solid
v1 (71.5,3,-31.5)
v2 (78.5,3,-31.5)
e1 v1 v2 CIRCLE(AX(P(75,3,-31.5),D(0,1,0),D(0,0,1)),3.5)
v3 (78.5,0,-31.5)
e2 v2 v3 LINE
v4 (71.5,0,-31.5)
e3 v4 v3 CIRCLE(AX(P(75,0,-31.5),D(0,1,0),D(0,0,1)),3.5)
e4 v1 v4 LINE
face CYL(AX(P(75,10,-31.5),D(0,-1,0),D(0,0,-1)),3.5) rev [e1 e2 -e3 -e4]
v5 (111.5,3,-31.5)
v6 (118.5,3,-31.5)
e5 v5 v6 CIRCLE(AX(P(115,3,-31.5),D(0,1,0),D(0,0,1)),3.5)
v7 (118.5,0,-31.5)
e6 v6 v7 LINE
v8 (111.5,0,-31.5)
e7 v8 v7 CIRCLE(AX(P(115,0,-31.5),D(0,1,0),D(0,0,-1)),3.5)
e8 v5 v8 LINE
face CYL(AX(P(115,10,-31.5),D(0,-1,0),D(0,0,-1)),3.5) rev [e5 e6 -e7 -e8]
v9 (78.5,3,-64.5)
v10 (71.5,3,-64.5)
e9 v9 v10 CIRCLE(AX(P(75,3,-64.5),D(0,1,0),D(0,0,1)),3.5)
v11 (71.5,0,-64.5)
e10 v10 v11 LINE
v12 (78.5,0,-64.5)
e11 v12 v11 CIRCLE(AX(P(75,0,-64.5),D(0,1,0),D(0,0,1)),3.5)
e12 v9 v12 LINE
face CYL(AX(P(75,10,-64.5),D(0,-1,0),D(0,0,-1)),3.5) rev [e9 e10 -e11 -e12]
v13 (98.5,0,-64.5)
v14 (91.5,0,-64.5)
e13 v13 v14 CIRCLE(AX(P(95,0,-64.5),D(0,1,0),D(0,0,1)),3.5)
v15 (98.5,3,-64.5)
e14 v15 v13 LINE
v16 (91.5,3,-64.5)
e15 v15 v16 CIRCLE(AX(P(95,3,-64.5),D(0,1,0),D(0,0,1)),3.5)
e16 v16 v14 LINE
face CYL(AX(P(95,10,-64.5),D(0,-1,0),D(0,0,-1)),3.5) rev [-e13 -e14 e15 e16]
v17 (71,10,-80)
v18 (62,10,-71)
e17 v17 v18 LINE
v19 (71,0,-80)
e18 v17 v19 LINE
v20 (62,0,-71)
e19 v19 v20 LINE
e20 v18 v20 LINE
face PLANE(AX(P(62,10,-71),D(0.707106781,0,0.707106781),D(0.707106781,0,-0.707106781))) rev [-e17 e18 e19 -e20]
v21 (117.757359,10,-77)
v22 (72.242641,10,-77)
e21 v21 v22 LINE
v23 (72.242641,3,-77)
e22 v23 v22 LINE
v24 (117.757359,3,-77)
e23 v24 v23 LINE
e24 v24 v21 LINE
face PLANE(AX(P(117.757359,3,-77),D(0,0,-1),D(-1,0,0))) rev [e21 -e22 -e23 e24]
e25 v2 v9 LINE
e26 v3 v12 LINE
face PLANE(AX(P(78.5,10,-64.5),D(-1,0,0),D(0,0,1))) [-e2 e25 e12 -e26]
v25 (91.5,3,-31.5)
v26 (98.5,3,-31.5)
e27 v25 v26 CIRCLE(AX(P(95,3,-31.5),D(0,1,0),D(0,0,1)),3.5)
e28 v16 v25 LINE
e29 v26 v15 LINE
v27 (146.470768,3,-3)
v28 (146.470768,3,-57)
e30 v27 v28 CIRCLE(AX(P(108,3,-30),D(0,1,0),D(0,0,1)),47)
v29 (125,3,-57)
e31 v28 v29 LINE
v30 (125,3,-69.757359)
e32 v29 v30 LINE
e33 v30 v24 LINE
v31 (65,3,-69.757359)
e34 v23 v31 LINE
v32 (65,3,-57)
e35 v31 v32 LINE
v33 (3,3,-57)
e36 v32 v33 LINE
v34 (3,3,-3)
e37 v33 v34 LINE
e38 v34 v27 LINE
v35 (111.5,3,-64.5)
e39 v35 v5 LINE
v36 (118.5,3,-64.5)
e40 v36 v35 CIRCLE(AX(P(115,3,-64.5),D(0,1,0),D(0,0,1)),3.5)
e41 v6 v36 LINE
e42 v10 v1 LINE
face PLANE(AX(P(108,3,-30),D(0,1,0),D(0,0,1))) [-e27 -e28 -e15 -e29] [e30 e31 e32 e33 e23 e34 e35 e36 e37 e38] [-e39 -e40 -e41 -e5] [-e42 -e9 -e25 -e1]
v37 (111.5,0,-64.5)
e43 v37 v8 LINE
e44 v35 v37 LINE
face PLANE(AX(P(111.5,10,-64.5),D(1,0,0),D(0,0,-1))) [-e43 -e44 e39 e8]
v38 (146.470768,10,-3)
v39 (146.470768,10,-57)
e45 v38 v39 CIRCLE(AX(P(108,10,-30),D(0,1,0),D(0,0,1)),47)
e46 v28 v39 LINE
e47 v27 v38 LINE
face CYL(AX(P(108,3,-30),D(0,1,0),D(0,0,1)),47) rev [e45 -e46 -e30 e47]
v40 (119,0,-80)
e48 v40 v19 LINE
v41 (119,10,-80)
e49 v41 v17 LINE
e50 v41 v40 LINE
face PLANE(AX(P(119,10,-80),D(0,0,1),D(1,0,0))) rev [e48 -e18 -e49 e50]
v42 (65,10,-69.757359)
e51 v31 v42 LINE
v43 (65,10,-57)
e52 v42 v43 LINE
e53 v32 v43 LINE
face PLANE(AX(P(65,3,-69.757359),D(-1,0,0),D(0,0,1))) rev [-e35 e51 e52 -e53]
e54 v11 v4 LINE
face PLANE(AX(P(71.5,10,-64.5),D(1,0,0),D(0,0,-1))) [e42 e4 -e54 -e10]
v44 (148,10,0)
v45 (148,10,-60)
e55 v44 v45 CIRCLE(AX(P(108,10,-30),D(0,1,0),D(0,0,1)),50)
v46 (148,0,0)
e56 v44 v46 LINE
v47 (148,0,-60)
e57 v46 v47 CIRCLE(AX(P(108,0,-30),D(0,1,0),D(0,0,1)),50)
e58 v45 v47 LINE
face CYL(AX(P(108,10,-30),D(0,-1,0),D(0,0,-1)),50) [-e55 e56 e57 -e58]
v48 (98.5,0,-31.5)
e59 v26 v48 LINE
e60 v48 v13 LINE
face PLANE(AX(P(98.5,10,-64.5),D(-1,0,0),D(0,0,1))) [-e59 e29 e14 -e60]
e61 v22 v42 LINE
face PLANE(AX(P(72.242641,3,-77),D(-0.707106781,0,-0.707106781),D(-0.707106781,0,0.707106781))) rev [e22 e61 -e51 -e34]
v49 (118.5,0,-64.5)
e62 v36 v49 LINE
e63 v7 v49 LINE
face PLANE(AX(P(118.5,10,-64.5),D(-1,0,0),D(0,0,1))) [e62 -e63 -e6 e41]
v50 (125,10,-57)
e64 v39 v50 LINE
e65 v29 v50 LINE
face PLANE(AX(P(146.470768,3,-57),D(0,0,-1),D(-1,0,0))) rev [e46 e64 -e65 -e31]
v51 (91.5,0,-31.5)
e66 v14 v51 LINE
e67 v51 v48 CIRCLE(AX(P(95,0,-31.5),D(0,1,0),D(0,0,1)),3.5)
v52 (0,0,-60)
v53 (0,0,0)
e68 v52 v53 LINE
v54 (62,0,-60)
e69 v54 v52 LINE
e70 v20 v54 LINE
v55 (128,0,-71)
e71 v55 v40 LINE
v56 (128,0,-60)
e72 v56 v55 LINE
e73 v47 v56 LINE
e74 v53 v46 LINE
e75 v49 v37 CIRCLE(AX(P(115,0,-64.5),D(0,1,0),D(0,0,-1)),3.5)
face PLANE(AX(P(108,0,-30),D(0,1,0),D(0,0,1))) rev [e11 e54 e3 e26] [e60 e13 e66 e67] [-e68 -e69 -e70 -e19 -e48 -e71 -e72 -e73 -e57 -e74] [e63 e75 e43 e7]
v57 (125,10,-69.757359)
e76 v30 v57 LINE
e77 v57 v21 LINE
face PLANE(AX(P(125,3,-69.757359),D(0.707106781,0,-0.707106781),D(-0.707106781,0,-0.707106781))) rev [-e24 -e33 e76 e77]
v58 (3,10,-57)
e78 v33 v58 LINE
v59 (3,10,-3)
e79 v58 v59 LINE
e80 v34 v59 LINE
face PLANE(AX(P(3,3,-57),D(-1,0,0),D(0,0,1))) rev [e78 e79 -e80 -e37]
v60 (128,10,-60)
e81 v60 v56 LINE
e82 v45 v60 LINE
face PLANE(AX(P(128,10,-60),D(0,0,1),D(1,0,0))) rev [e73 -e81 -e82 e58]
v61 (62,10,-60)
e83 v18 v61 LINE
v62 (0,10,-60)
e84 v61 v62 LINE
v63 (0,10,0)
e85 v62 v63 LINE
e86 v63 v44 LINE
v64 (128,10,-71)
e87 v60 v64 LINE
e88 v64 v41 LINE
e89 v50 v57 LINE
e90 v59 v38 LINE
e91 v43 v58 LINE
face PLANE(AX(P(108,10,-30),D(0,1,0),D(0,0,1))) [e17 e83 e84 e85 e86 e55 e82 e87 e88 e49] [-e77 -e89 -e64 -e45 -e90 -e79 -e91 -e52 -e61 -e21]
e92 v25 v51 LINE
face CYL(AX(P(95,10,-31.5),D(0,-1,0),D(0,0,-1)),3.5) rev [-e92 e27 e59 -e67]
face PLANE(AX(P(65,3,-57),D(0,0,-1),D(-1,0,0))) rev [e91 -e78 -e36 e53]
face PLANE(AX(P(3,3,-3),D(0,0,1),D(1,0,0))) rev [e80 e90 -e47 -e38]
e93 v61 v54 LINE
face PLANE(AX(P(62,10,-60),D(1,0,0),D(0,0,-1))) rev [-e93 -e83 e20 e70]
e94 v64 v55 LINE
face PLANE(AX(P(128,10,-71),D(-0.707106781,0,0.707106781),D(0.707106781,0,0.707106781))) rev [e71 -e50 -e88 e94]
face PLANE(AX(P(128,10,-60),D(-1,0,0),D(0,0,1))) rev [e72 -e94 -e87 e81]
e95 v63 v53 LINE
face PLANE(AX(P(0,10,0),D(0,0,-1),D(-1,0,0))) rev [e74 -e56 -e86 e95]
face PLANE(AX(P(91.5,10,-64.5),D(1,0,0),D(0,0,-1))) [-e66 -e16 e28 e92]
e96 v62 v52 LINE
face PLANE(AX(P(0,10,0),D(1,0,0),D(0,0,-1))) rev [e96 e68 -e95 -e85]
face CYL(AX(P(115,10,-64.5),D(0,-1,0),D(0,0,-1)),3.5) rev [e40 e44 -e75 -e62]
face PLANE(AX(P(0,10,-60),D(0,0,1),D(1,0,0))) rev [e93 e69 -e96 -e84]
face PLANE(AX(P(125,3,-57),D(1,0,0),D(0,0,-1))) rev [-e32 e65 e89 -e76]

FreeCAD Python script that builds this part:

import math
import FreeCAD as App
import Part
import Sketcher

V = App.Vector
Q = App.Units.Quantity

doc = App.newDocument("Part")
body = doc.addObject("PartDesign::Body", "Body")

sketch1 = body.newObject("Sketcher::SketchObject", "Sketch")
sketch1.AttachmentSupport = (doc.getObject("XZ_Plane"), [""])
sketch1.MapMode = "FlatFace"
sketch1.addGeometry([
    Part.LineSegment(V(0, -60, 0), V(0, 0, 0)),
    Part.LineSegment(V(0, 0, 0), V(148, 0, 0)),
    Part.ArcOfCircle(Part.Circle(V(108, -30, 0), V(0, 0, 1), 50), math.radians(-37), math.radians(37)),
    Part.LineSegment(V(148, -60, 0), V(128, -60, 0)),
    Part.LineSegment(V(128, -60, 0), V(128, -71, 0)),
    Part.LineSegment(V(128, -71, 0), V(119, -80, 0)),
    Part.LineSegment(V(119, -80, 0), V(71, -80, 0)),
    Part.LineSegment(V(71, -80, 0), V(62, -71, 0)),
    Part.LineSegment(V(62, -71, 0), V(62, -60, 0)),
    Part.LineSegment(V(62, -60, 0), V(0, -60, 0)),
    Part.ArcOfCircle(Part.Circle(V(115, -64.5, 0), V(0, 0, 1), 3.5), math.radians(180), math.radians(360)),
    Part.LineSegment(V(118.5, -64.5, 0), V(118.5, -31.5, 0)),
    Part.ArcOfCircle(Part.Circle(V(115, -31.5, 0), V(0, 0, 1), 3.5), math.radians(0), math.radians(180)),
    Part.LineSegment(V(111.5, -31.5, 0), V(111.5, -64.5, 0)),
    Part.LineSegment(V(98.5, -64.5, 0), V(98.5, -31.5, 0)),
    Part.ArcOfCircle(Part.Circle(V(95, -31.5, 0), V(0, 0, 1), 3.5), math.radians(0), math.radians(180)),
    Part.LineSegment(V(91.5, -31.5, 0), V(91.5, -64.5, 0)),
    Part.ArcOfCircle(Part.Circle(V(95, -64.5, 0), V(0, 0, 1), 3.5), math.radians(180), math.radians(360)),
    Part.LineSegment(V(78.5, -64.5, 0), V(78.5, -31.5, 0)),
    Part.ArcOfCircle(Part.Circle(V(75, -31.5, 0), V(0, 0, 1), 3.5), math.radians(0), math.radians(180)),
    Part.LineSegment(V(71.5, -31.5, 0), V(71.5, -64.5, 0)),
    Part.ArcOfCircle(Part.Circle(V(75, -64.5, 0), V(0, 0, 1), 3.5), math.radians(180), math.radians(360)),
], False)
sketch1.addConstraint([
    Sketcher.Constraint("Coincident", 0, 2, 1, 1),
    Sketcher.Constraint("Coincident", 1, 2, 2, 2),
    Sketcher.Constraint("Coincident", 2, 1, 3, 1),
    Sketcher.Constraint("Coincident", 3, 2, 4, 1),
    Sketcher.Constraint("Coincident", 4, 2, 5, 1),
    Sketcher.Constraint("Coincident", 5, 2, 6, 1),
    Sketcher.Constraint("Coincident", 6, 2, 7, 1),
    Sketcher.Constraint("Coincident", 7, 2, 8, 1),
    Sketcher.Constraint("Coincident", 8, 2, 9, 1),
    Sketcher.Constraint("Coincident", 9, 2, 0, 1),
    Sketcher.Constraint("Tangent", 10, 2, 11, 1),
    Sketcher.Constraint("Tangent", 11, 2, 12, 1),
    Sketcher.Constraint("Tangent", 12, 2, 13, 1),
    Sketcher.Constraint("Tangent", 13, 2, 10, 1),
    Sketcher.Constraint("Tangent", 14, 2, 15, 1),
    Sketcher.Constraint("Tangent", 15, 2, 16, 1),
    Sketcher.Constraint("Tangent", 16, 2, 17, 1),
    Sketcher.Constraint("Tangent", 17, 2, 14, 1),
    Sketcher.Constraint("Tangent", 18, 2, 19, 1),
    Sketcher.Constraint("Tangent", 19, 2, 20, 1),
    Sketcher.Constraint("Tangent", 20, 2, 21, 1),
    Sketcher.Constraint("Tangent", 21, 2, 18, 1),
    Sketcher.Constraint("Vertical", 0),
    Sketcher.Constraint("Horizontal", 1),
    Sketcher.Constraint("Horizontal", 3),
    Sketcher.Constraint("Vertical", 4),
    Sketcher.Constraint("Horizontal", 6),
    Sketcher.Constraint("Vertical", 8),
    Sketcher.Constraint("Horizontal", 9),
    Sketcher.Constraint("Vertical", 11),
    Sketcher.Constraint("Vertical", 13),
    Sketcher.Constraint("Vertical", 14),
    Sketcher.Constraint("Vertical", 16),
    Sketcher.Constraint("Vertical", 18),
    Sketcher.Constraint("Vertical", 20),
    Sketcher.Constraint("Coincident", 0, 2, -1, 1),
    Sketcher.Constraint("Equal", 12, 15),
    Sketcher.Constraint("Equal", 17, 19),
    Sketcher.Constraint("Perpendicular", 5, 7),
    Sketcher.Constraint("Horizontal", 12, 3, 15, 3),
    Sketcher.Constraint("Horizontal", 10, 3, 17, 3),
    Sketcher.Constraint("Horizontal", 15, 3, 19, 3),
    Sketcher.Constraint("Horizontal", 17, 3, 21, 3),
    Sketcher.Constraint("Horizontal", 4, 2, 7, 2),
    Sketcher.Constraint("Horizontal", 3, 2, 8, 2),
    Sketcher.Constraint("Vertical", 1, 2, 2, 1),
    Sketcher.Constraint("Equal", 5, 7),
    Sketcher.Constraint("Radius", 2, Q("50 mm")),
    Sketcher.Constraint("Radius", 10, Q("3.5 mm")),
    Sketcher.Constraint("DistanceX", 1, 1, 1, 2, Q("148 mm")),
    Sketcher.Constraint("DistanceX", 3, 2, 3, 1, Q("20 mm")),
    Sketcher.Constraint("DistanceX", 6, 2, 6, 1, Q("48 mm")),
    Sketcher.Constraint("DistanceX", 9, 2, 9, 1, Q("62 mm")),
    Sketcher.Constraint("DistanceY", 0, 1, 0, 2, Q("60 mm")),
    Sketcher.Constraint("DistanceY", 4, 2, 4, 1, Q("11 mm")),
    Sketcher.Constraint("DistanceY", 11, 1, 11, 2, Q("33 mm")),
    Sketcher.Constraint("DistanceX", -1, 1, 10, 3, Q("115 mm")),
    Sketcher.Constraint("DistanceX", -1, 1, 15, 3, Q("95 mm")),
    Sketcher.Constraint("DistanceX", -1, 1, 19, 3, Q("75 mm")),
    Sketcher.Constraint("DistanceY", 10, 3, -1, 1, Q("64.5 mm")),
])
pad1 = body.newObject("PartDesign::Pad", "Pad")
pad1.Profile = sketch1
pad1.Length = 10
pad1.Reversed = True

sketch2 = body.newObject("Sketcher::SketchObject", "Sketch001")
sketch2.AttachmentSupport = (doc.getObject("XZ_Plane"), [""])
sketch2.MapMode = "FlatFace"
sketch2.AttachmentOffset = App.Placement(V(0, 0, -10), App.Rotation())
sketch2.addGeometry([
    Part.LineSegment(V(125, -57, 0), V(125, -70, 0)),
    Part.LineSegment(V(125, -70, 0), V(118, -77, 0)),
    Part.LineSegment(V(118, -77, 0), V(72, -77, 0)),
    Part.LineSegment(V(72, -77, 0), V(65, -70, 0)),
    Part.LineSegment(V(65, -70, 0), V(65, -57, 0)),
    Part.LineSegment(V(65, -57, 0), V(3, -57, 0)),
    Part.LineSegment(V(3, -57, 0), V(3, -3, 0)),
    Part.LineSegment(V(3, -3, 0), V(146, -3, 0)),
    Part.ArcOfCircle(Part.Circle(V(108, -30, 0), V(0, 0, 1), 47), math.radians(-35), math.radians(35)),
    Part.LineSegment(V(146, -57, 0), V(125, -57, 0)),
], False)
sketch2.addConstraint([
    Sketcher.Constraint("Coincident", 0, 2, 1, 1),
    Sketcher.Constraint("Coincident", 1, 2, 2, 1),
    Sketcher.Constraint("Coincident", 2, 2, 3, 1),
    Sketcher.Constraint("Coincident", 3, 2, 4, 1),
    Sketcher.Constraint("Coincident", 4, 2, 5, 1),
    Sketcher.Constraint("Coincident", 5, 2, 6, 1),
    Sketcher.Constraint("Coincident", 6, 2, 7, 1),
    Sketcher.Constraint("Coincident", 7, 2, 8, 2),
    Sketcher.Constraint("Coincident", 8, 1, 9, 1),
    Sketcher.Constraint("Coincident", 9, 2, 0, 1),
    Sketcher.Constraint("Vertical", 0),
    Sketcher.Constraint("Horizontal", 2),
    Sketcher.Constraint("Vertical", 4),
    Sketcher.Constraint("Horizontal", 5),
    Sketcher.Constraint("Vertical", 6),
    Sketcher.Constraint("Horizontal", 7),
    Sketcher.Constraint("Horizontal", 9),
    Sketcher.Constraint("Perpendicular", 1, 3),
    Sketcher.Constraint("Horizontal", 0, 2, 3, 2),
    Sketcher.Constraint("Horizontal", 5, 2, 8, 1),
    Sketcher.Constraint("Vertical", 7, 2, 8, 1),
    Sketcher.Constraint("Equal", 1, 3),
    Sketcher.Constraint("Radius", 8, Q("47 mm")),
    Sketcher.Constraint("DistanceX", 5, 2, 5, 1, Q("62 mm")),
    Sketcher.Constraint("DistanceY", 6, 1, 6, 2, Q("54 mm")),
    Sketcher.Constraint("DistanceX", -1, 1, 8, 3, Q("108 mm")),
    Sketcher.Constraint("DistanceY", 8, 3, -1, 1, Q("30 mm")),
    Sketcher.Constraint("DistanceX", -1, 1, 0, 2, Q("125 mm")),
    Sketcher.Constraint("DistanceY", 1, 2, -1, 1, Q("77 mm")),
    Sketcher.Constraint("DistanceX", -1, 1, 3, 2, Q("65 mm")),
    Sketcher.Constraint("DistanceX", 2, 2, 2, 1, Q("45.514719 mm")),
])
pocket1 = body.newObject("PartDesign::Pocket", "Pocket")
pocket1.Profile = sketch2
pocket1.Length = 7
pocket1.Reversed = True

doc.recompute()
